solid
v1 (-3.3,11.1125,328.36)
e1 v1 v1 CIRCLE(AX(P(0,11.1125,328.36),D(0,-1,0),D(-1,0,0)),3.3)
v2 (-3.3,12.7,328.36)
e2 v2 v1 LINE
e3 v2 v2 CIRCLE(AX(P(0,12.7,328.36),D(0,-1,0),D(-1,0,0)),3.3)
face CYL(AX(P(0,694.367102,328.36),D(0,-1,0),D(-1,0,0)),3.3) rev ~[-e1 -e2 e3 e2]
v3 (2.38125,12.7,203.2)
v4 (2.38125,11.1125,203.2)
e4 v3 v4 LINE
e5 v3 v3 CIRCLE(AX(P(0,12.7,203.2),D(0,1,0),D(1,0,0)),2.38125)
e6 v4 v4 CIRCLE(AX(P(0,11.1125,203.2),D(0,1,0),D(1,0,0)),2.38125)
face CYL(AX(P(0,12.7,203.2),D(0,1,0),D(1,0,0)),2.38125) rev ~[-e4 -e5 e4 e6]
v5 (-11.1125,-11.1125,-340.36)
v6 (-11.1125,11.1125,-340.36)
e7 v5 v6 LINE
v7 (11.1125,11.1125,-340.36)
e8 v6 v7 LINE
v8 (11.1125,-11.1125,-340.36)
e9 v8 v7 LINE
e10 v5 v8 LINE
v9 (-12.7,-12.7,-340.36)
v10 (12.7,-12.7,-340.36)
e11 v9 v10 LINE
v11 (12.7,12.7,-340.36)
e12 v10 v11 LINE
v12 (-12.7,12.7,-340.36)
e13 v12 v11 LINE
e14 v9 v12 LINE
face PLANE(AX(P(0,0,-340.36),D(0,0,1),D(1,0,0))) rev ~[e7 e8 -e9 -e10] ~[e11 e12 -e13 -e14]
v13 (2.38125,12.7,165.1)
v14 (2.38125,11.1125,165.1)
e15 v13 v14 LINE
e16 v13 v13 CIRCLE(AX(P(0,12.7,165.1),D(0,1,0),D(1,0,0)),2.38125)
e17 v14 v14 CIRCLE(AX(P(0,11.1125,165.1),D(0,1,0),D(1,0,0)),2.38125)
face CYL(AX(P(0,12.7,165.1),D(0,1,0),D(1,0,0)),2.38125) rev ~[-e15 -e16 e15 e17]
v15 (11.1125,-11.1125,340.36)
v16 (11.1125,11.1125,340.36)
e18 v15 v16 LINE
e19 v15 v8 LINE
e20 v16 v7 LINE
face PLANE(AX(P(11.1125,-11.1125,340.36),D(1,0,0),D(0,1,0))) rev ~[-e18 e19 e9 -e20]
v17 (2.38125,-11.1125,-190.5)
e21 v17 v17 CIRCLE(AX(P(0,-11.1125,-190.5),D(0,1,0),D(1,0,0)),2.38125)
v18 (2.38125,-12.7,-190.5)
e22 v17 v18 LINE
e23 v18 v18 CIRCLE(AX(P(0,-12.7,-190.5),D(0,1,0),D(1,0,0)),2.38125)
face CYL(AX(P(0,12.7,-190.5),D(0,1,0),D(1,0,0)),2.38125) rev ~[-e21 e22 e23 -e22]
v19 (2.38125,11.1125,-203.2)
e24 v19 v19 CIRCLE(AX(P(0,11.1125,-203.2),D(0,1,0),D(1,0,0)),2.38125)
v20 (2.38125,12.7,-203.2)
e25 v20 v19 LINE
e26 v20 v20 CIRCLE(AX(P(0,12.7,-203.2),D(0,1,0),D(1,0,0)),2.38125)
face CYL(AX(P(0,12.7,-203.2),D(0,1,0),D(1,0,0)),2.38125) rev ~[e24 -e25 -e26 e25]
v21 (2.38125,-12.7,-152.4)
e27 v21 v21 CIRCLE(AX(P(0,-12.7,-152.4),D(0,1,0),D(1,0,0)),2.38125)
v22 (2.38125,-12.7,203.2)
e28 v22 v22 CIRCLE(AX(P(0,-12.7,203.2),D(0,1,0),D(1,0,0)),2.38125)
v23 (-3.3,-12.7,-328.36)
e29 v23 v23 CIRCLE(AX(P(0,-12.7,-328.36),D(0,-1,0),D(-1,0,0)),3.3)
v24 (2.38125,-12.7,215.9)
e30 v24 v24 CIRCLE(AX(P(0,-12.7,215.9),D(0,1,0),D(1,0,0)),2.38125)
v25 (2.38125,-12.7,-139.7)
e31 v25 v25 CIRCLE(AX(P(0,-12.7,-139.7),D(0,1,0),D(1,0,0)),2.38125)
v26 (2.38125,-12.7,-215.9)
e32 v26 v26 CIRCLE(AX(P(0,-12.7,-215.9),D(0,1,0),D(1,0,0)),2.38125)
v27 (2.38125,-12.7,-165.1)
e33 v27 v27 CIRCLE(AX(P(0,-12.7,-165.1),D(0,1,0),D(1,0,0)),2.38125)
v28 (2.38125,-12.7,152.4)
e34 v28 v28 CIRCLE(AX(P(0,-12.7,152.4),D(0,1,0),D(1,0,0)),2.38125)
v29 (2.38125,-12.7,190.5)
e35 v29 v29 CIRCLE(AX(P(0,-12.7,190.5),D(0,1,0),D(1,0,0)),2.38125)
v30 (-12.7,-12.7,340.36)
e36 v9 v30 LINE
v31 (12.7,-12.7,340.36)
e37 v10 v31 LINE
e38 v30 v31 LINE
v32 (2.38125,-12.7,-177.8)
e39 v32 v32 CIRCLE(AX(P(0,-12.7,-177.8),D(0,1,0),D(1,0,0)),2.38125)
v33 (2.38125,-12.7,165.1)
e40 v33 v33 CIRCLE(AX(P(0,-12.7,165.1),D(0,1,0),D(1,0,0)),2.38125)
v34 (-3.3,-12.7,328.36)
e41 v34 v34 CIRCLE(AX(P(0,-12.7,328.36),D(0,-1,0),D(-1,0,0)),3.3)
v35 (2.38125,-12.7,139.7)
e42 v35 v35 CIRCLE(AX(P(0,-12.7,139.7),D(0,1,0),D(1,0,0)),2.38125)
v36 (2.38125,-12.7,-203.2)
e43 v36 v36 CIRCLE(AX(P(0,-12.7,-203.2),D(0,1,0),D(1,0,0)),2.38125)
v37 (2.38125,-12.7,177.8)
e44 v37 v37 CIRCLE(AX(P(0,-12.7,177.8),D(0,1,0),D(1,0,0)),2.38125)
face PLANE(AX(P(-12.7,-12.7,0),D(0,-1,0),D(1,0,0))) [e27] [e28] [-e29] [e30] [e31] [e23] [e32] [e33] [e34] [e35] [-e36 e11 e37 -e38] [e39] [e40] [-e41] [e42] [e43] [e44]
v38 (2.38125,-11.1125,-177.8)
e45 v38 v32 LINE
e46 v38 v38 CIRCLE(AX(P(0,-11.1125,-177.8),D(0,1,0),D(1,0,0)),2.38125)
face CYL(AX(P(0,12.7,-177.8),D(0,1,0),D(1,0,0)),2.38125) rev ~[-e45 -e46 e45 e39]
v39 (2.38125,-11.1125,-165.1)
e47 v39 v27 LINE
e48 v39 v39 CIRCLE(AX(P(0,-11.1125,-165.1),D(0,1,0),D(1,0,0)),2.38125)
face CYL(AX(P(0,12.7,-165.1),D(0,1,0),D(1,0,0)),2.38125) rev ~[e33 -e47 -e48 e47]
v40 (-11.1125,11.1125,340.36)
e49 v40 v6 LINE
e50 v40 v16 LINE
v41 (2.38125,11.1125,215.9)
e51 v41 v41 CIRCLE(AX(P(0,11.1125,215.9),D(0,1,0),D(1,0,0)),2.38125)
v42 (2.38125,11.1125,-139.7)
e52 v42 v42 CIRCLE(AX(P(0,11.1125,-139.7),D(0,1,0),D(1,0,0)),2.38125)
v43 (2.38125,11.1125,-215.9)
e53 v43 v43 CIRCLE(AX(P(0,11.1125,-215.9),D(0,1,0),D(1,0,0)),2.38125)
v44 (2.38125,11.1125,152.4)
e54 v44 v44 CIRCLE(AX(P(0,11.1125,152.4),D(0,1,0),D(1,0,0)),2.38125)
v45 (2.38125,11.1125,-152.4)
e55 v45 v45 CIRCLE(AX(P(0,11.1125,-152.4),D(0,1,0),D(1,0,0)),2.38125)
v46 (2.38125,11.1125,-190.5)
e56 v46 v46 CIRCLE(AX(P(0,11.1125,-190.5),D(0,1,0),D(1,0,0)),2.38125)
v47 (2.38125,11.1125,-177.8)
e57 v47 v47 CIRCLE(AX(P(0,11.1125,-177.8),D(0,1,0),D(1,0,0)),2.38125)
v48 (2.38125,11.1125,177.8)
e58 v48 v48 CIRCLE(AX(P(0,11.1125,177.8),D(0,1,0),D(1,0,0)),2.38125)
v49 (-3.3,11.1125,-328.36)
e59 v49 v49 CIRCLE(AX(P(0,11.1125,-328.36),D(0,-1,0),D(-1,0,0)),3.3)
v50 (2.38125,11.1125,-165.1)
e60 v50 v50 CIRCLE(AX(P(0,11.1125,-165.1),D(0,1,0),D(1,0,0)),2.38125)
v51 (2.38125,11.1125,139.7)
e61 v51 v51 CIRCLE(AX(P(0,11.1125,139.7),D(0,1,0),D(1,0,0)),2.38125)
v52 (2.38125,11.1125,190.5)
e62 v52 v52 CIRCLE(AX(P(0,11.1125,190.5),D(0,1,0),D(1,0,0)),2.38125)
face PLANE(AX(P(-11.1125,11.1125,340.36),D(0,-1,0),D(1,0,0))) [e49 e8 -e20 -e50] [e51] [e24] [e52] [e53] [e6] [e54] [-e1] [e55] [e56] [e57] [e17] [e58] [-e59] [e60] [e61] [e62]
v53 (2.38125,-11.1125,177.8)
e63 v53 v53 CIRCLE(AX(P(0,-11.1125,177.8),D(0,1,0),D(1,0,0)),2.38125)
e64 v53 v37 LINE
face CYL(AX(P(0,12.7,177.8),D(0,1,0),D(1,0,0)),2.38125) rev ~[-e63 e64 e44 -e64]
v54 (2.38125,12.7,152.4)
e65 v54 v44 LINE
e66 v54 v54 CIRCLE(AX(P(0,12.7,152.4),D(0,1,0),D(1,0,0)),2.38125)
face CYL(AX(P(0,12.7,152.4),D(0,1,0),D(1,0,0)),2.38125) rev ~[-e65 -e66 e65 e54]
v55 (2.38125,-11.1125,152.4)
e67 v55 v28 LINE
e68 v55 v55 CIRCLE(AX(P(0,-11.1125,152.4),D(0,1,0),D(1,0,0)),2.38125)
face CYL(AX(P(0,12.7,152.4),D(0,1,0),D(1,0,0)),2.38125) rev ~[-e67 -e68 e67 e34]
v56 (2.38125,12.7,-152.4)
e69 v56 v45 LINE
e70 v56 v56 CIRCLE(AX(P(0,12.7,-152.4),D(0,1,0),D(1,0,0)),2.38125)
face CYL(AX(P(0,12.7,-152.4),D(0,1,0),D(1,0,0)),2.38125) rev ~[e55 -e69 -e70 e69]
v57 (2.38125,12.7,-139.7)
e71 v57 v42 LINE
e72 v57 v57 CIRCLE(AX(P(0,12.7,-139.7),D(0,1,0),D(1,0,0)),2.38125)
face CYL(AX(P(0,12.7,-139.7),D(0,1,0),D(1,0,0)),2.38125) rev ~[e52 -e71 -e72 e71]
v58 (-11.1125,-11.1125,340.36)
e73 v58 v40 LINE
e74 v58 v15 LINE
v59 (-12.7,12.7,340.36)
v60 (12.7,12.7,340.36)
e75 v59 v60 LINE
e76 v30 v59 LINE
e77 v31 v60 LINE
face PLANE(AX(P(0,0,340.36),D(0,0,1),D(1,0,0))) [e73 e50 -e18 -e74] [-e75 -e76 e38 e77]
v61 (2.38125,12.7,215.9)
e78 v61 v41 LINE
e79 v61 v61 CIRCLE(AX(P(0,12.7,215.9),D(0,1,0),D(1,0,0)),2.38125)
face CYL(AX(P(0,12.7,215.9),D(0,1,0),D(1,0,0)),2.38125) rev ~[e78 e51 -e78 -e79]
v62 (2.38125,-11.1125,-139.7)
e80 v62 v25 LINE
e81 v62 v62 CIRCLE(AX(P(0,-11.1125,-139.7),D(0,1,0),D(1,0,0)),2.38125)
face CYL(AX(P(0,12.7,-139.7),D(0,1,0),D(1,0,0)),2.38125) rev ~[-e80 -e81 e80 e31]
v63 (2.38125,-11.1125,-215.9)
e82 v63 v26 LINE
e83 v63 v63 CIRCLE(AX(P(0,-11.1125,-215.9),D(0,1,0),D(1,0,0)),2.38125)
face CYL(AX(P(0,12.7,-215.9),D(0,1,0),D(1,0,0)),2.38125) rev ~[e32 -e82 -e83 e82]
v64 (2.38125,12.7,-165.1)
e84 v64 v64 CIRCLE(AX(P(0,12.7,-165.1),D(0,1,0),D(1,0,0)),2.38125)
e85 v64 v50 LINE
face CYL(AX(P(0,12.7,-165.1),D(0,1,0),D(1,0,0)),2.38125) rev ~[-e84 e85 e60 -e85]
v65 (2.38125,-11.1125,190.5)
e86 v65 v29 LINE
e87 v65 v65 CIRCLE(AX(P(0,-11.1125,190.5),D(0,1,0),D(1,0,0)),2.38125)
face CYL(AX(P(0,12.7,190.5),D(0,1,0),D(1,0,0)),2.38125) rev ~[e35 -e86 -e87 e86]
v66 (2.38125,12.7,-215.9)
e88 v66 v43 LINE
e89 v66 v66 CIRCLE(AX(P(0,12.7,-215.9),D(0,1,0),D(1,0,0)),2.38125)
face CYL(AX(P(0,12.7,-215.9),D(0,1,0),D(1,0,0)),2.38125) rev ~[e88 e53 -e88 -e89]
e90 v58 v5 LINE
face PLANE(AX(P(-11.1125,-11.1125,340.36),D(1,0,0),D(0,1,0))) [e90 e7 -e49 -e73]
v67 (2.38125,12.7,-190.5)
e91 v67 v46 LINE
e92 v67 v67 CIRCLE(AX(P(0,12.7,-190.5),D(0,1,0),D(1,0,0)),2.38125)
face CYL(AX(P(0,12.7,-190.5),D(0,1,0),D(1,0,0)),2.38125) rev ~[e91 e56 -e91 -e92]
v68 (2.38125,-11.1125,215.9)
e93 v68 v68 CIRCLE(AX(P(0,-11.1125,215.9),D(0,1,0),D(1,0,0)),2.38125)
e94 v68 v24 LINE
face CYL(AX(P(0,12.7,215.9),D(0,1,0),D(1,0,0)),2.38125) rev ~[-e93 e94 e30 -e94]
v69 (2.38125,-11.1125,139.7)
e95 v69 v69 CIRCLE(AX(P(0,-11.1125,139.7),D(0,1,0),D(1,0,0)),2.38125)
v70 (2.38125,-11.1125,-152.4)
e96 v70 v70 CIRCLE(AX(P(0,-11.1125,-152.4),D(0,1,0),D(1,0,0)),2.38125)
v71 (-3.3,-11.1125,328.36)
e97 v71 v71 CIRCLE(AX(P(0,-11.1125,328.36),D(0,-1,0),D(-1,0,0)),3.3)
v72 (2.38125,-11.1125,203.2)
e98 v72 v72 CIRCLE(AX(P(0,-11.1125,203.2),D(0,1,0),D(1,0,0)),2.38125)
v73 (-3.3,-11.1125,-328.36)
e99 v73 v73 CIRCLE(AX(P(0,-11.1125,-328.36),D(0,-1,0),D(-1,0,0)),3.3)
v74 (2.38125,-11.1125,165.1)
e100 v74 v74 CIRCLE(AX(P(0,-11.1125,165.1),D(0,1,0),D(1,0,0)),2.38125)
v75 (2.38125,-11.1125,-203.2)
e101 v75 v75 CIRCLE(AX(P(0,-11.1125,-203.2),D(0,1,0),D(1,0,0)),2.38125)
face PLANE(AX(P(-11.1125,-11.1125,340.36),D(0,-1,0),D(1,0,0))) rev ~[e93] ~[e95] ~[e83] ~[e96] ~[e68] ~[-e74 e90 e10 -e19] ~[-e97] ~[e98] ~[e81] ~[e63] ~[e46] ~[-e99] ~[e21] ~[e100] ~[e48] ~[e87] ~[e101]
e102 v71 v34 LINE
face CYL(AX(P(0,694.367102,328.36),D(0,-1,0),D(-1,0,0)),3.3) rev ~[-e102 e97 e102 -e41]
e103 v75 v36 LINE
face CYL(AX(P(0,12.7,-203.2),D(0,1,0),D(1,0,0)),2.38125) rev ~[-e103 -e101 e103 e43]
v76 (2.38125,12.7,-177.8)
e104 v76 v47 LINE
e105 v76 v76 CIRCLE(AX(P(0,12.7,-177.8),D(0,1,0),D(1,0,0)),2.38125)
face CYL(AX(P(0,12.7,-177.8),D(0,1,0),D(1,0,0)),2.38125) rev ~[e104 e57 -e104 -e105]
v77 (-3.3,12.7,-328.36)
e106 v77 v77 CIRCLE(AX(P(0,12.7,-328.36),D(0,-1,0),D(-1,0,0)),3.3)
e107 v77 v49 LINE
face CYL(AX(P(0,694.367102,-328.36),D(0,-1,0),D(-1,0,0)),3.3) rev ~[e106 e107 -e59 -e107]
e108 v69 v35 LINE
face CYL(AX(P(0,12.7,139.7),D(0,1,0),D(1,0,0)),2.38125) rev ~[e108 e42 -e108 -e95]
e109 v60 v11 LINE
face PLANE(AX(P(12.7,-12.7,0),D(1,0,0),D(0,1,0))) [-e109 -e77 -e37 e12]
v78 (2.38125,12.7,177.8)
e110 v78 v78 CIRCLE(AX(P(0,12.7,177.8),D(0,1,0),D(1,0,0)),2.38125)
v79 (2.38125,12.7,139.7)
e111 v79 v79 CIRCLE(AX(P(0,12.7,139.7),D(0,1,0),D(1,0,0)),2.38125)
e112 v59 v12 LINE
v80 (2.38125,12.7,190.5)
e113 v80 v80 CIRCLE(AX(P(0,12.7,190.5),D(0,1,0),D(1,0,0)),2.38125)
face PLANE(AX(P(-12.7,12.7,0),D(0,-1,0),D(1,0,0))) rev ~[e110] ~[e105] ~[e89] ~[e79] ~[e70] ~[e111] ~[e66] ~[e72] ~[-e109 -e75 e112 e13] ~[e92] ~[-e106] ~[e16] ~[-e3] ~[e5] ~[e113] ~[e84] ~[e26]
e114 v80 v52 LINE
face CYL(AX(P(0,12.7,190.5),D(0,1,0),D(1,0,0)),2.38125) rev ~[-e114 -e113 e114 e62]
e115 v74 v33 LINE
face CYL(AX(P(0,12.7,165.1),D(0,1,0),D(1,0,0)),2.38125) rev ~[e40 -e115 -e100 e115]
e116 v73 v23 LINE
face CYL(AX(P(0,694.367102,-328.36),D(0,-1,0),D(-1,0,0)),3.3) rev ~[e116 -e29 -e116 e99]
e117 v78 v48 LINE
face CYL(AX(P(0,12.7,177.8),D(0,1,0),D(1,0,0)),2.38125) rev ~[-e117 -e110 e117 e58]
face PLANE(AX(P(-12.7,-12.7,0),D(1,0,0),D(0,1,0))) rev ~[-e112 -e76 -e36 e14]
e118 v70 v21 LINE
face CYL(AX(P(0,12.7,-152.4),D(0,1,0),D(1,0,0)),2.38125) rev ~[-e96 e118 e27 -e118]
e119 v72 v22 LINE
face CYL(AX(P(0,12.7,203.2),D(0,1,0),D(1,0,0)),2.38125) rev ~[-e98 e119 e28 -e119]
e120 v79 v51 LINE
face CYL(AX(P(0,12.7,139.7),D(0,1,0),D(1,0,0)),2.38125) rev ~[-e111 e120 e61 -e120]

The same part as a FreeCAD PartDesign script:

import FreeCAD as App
import Part
import Sketcher
from FreeCAD import Vector
Q = App.Units.Quantity

doc = App.newDocument("Part")
body = doc.addObject("PartDesign::Body", "Body")

# Sketch on XY plane
sketch1 = doc.addObject("Sketcher::SketchObject", "Sketch")
body.addObject(sketch1)
sketch1.AttachmentSupport = (doc.XY_Plane, [""])
sketch1.MapMode = "FlatFace"
sketch1.addGeometry(Part.LineSegment(Vector(-13, 13, 0), Vector(-13, -13, 0)), False)
sketch1.addGeometry(Part.LineSegment(Vector(-13, -13, 0), Vector(13, -13, 0)), False)
sketch1.addGeometry(Part.LineSegment(Vector(13, -13, 0), Vector(13, 13, 0)), False)
sketch1.addGeometry(Part.LineSegment(Vector(13, 13, 0), Vector(-13, 13, 0)), False)
sketch1.addConstraint(Sketcher.Constraint("Coincident", 0, 2, 1, 1))
sketch1.addConstraint(Sketcher.Constraint("Coincident", 1, 2, 2, 1))
sketch1.addConstraint(Sketcher.Constraint("Coincident", 2, 2, 3, 1))
sketch1.addConstraint(Sketcher.Constraint("Coincident", 3, 2, 0, 1))
sketch1.addConstraint(Sketcher.Constraint("Vertical", 0))
sketch1.addConstraint(Sketcher.Constraint("Horizontal", 1))
sketch1.addConstraint(Sketcher.Constraint("Vertical", 2))
sketch1.addConstraint(Sketcher.Constraint("Horizontal", 3))
sketch1.addConstraint(Sketcher.Constraint("Symmetric", 0, 2, 2, 2, -1, 1))
sketch1.addConstraint(Sketcher.Constraint("Equal", 3, 0))
sketch1.addConstraint(Sketcher.Constraint("DistanceX", 1, 1, 1, 2, Q("1 in")))
pad1 = doc.addObject("PartDesign::Pad", "Pad")
body.addObject(pad1)
pad1.Profile = sketch1
pad1.Length = Q("26.8 in")
pad1.Midplane = True

# Sketch on XY plane
sketch2 = doc.addObject("Sketcher::SketchObject", "Sketch001")
body.addObject(sketch2)
sketch2.AttachmentSupport = (doc.XY_Plane, [""])
sketch2.MapMode = "FlatFace"
sketch2.AttachmentOffset = App.Placement(Vector(0, 0, 13.4 * 25.4), App.Rotation())
sketch2.addGeometry(Part.LineSegment(Vector(-11, 11, 0), Vector(-11, -11, 0)), False)
sketch2.addGeometry(Part.LineSegment(Vector(-11, -11, 0), Vector(11, -11, 0)), False)
sketch2.addGeometry(Part.LineSegment(Vector(11, -11, 0), Vector(11, 11, 0)), False)
sketch2.addGeometry(Part.LineSegment(Vector(11, 11, 0), Vector(-11, 11, 0)), False)
sketch2.addConstraint(Sketcher.Constraint("Coincident", 0, 2, 1, 1))
sketch2.addConstraint(Sketcher.Constraint("Coincident", 1, 2, 2, 1))
sketch2.addConstraint(Sketcher.Constraint("Coincident", 2, 2, 3, 1))
sketch2.addConstraint(Sketcher.Constraint("Coincident", 3, 2, 0, 1))
sketch2.addConstraint(Sketcher.Constraint("Vertical", 0))
sketch2.addConstraint(Sketcher.Constraint("Horizontal", 1))
sketch2.addConstraint(Sketcher.Constraint("Vertical", 2))
sketch2.addConstraint(Sketcher.Constraint("Horizontal", 3))
sketch2.addConstraint(Sketcher.Constraint("Symmetric", 0, 2, 2, 2, -1, 1))
sketch2.addConstraint(Sketcher.Constraint("Equal", 3, 0))
sketch2.addConstraint(Sketcher.Constraint("DistanceX", 1, 1, 1, 2, Q("0.875 in")))
pocket1 = doc.addObject("PartDesign::Pocket", "Pocket")
body.addObject(pocket1)
pocket1.Profile = sketch2
pocket1.Type = "ThroughAll"

# Sketch on XZ plane
sketch3 = doc.addObject("Sketcher::SketchObject", "Sketch002")
body.addObject(sketch3)
sketch3.AttachmentSupport = (doc.XZ_Plane, [""])
sketch3.MapMode = "FlatFace"
sketch3.AttachmentOffset = App.Placement(Vector(0, 0, -0.5 * 25.4), App.Rotation())
sketch3.addGeometry(Part.Circle(Vector(0, 215.9, 0), Vector(0, 0, 1), 2.4), False)
sketch3.addGeometry(Part.Circle(Vector(0, 203.2, 0), Vector(0, 0, 1), 2.4), False)
sketch3.addGeometry(Part.Circle(Vector(0, 190.5, 0), Vector(0, 0, 1), 2.4), False)
sketch3.addGeometry(Part.Circle(Vector(0, 177.8, 0), Vector(0, 0, 1), 2.4), False)
sketch3.addGeometry(Part.Circle(Vector(0, 165.1, 0), Vector(0, 0, 1), 2.4), False)
sketch3.addGeometry(Part.Circle(Vector(0, 152.4, 0), Vector(0, 0, 1), 2.4), False)
sketch3.addGeometry(Part.Circle(Vector(0, 139.7, 0), Vector(0, 0, 1), 2.4), False)
sketch3.addGeometry(Part.Circle(Vector(0, -139.7, 0), Vector(0, 0, 1), 2.4), False)
sketch3.addGeometry(Part.Circle(Vector(0, -152.4, 0), Vector(0, 0, 1), 2.4), False)
sketch3.addGeometry(Part.Circle(Vector(0, -165.1, 0), Vector(0, 0, 1), 2.4), False)
sketch3.addGeometry(Part.Circle(Vector(0, -177.8, 0), Vector(0, 0, 1), 2.4), False)
sketch3.addGeometry(Part.Circle(Vector(0, -190.5, 0), Vector(0, 0, 1), 2.4), False)
sketch3.addGeometry(Part.Circle(Vector(0, -215.9, 0), Vector(0, 0, 1), 2.4), False)
sketch3.addGeometry(Part.Circle(Vector(0, -203.2, 0), Vector(0, 0, 1), 2.4), False)
sketch3.addConstraint(Sketcher.Constraint("Equal", 0, 1))
sketch3.addConstraint(Sketcher.Constraint("Equal", 1, 2))
sketch3.addConstraint(Sketcher.Constraint("Equal", 2, 3))
sketch3.addConstraint(Sketcher.Constraint("Equal", 3, 4))
sketch3.addConstraint(Sketcher.Constraint("Equal", 4, 5))
sketch3.addConstraint(Sketcher.Constraint("Equal", 5, 6))
sketch3.addConstraint(Sketcher.Constraint("Equal", 6, 7))
sketch3.addConstraint(Sketcher.Constraint("Equal", 7, 8))
sketch3.addConstraint(Sketcher.Constraint("Equal", 8, 9))
sketch3.addConstraint(Sketcher.Constraint("Equal", 9, 10))
sketch3.addConstraint(Sketcher.Constraint("Equal", 10, 11))
sketch3.addConstraint(Sketcher.Constraint("Equal", 11, 12))
sketch3.addConstraint(Sketcher.Constraint("Equal", 12, 13))
sketch3.addConstraint(Sketcher.Constraint("Symmetric", 6, 3, 7, 3, -1, 1))
sketch3.addConstraint(Sketcher.Constraint("Symmetric", 5, 3, 8, 3, -1, 1))
sketch3.addConstraint(Sketcher.Constraint("Symmetric", 4, 3, 9, 3, -1, 1))
sketch3.addConstraint(Sketcher.Constraint("Symmetric", 3, 3, 10, 3, -1, 1))
sketch3.addConstraint(Sketcher.Constraint("Symmetric", 2, 3, 11, 3, -1, 1))
sketch3.addConstraint(Sketcher.Constraint("Symmetric", 0, 3, 12, 3, -1, 1))
sketch3.addConstraint(Sketcher.Constraint("Symmetric", 1, 3, 13, 3, -1, 1))
sketch3.addConstraint(Sketcher.Constraint("PointOnObject", 0, 3, -2))
sketch3.addConstraint(Sketcher.Constraint("PointOnObject", 1, 3, -2))
sketch3.addConstraint(Sketcher.Constraint("PointOnObject", 2, 3, -2))
sketch3.addConstraint(Sketcher.Constraint("PointOnObject", 3, 3, -2))
sketch3.addConstraint(Sketcher.Constraint("PointOnObject", 4, 3, -2))
sketch3.addConstraint(Sketcher.Constraint("PointOnObject", 5, 3, -2))
sketch3.addConstraint(Sketcher.Constraint("PointOnObject", 6, 3, -2))
sketch3.addConstraint(Sketcher.Constraint("Diameter", 0, Q("0.1875 in")))
sketch3.addConstraint(Sketcher.Constraint("DistanceY", -1, 1, 1, 3, Q("8 in")))
sketch3.addConstraint(Sketcher.Constraint("DistanceY", -1, 1, 3, 3, Q("7 in")))
sketch3.addConstraint(Sketcher.Constraint("DistanceY", -1, 1, 5, 3, Q("6 in")))
sketch3.addConstraint(Sketcher.Constraint("DistanceY", 2, 3, 0, 3, Q("1 in")))
sketch3.addConstraint(Sketcher.Constraint("DistanceY", 4, 3, 2, 3, Q("1 in")))
sketch3.addConstraint(Sketcher.Constraint("DistanceY", 6, 3, 4, 3, Q("1 in")))
sketch3.addConstraint(Sketcher.Constraint("DistanceY", 7, 3, 6, 3, Q("11 in")))
pocket2 = doc.addObject("PartDesign::Pocket", "Pocket001")
body.addObject(pocket2)
pocket2.Profile = sketch3
pocket2.Type = "ThroughAll"
pocket2.Reversed = True

# Sketch on XZ plane
sketch4 = doc.addObject("Sketcher::SketchObject", "Sketch003")
body.addObject(sketch4)
sketch4.AttachmentSupport = (doc.XZ_Plane, [""])
sketch4.MapMode = "FlatFace"
sketch4.AttachmentOffset = App.Placement(Vector(0, 0, -0.5 * 25.4), App.Rotation())
sketch4.addGeometry(Part.Circle(Vector(0, -328.4, 0), Vector(0, 0, 1), 3.3), False)
sketch4.addGeometry(Part.Circle(Vector(0, 328.4, 0), Vector(0, 0, 1), 3.3), False)
sketch4.addConstraint(Sketcher.Constraint("Equal", 0, 1))
sketch4.addConstraint(Sketcher.Constraint("Symmetric", 0, 3, 1, 3, -1, 1))
sketch4.addConstraint(Sketcher.Constraint("PointOnObject", 0, 3, -2))
sketch4.addConstraint(Sketcher.Constraint("Diameter", 0, 6.6))
sketch4.addConstraint(Sketcher.Constraint("DistanceY", 0, 3, -1, 1, 328.36))
doc.recompute()
hole = doc.addObject("PartDesign::Hole", "Hole")
body.addObject(hole)
hole.Profile = sketch4
hole.ThreadType = "None"
hole.Diameter = 6.6
hole.DepthType = "ThroughAll"
hole.Reversed = True

doc.recompute()
